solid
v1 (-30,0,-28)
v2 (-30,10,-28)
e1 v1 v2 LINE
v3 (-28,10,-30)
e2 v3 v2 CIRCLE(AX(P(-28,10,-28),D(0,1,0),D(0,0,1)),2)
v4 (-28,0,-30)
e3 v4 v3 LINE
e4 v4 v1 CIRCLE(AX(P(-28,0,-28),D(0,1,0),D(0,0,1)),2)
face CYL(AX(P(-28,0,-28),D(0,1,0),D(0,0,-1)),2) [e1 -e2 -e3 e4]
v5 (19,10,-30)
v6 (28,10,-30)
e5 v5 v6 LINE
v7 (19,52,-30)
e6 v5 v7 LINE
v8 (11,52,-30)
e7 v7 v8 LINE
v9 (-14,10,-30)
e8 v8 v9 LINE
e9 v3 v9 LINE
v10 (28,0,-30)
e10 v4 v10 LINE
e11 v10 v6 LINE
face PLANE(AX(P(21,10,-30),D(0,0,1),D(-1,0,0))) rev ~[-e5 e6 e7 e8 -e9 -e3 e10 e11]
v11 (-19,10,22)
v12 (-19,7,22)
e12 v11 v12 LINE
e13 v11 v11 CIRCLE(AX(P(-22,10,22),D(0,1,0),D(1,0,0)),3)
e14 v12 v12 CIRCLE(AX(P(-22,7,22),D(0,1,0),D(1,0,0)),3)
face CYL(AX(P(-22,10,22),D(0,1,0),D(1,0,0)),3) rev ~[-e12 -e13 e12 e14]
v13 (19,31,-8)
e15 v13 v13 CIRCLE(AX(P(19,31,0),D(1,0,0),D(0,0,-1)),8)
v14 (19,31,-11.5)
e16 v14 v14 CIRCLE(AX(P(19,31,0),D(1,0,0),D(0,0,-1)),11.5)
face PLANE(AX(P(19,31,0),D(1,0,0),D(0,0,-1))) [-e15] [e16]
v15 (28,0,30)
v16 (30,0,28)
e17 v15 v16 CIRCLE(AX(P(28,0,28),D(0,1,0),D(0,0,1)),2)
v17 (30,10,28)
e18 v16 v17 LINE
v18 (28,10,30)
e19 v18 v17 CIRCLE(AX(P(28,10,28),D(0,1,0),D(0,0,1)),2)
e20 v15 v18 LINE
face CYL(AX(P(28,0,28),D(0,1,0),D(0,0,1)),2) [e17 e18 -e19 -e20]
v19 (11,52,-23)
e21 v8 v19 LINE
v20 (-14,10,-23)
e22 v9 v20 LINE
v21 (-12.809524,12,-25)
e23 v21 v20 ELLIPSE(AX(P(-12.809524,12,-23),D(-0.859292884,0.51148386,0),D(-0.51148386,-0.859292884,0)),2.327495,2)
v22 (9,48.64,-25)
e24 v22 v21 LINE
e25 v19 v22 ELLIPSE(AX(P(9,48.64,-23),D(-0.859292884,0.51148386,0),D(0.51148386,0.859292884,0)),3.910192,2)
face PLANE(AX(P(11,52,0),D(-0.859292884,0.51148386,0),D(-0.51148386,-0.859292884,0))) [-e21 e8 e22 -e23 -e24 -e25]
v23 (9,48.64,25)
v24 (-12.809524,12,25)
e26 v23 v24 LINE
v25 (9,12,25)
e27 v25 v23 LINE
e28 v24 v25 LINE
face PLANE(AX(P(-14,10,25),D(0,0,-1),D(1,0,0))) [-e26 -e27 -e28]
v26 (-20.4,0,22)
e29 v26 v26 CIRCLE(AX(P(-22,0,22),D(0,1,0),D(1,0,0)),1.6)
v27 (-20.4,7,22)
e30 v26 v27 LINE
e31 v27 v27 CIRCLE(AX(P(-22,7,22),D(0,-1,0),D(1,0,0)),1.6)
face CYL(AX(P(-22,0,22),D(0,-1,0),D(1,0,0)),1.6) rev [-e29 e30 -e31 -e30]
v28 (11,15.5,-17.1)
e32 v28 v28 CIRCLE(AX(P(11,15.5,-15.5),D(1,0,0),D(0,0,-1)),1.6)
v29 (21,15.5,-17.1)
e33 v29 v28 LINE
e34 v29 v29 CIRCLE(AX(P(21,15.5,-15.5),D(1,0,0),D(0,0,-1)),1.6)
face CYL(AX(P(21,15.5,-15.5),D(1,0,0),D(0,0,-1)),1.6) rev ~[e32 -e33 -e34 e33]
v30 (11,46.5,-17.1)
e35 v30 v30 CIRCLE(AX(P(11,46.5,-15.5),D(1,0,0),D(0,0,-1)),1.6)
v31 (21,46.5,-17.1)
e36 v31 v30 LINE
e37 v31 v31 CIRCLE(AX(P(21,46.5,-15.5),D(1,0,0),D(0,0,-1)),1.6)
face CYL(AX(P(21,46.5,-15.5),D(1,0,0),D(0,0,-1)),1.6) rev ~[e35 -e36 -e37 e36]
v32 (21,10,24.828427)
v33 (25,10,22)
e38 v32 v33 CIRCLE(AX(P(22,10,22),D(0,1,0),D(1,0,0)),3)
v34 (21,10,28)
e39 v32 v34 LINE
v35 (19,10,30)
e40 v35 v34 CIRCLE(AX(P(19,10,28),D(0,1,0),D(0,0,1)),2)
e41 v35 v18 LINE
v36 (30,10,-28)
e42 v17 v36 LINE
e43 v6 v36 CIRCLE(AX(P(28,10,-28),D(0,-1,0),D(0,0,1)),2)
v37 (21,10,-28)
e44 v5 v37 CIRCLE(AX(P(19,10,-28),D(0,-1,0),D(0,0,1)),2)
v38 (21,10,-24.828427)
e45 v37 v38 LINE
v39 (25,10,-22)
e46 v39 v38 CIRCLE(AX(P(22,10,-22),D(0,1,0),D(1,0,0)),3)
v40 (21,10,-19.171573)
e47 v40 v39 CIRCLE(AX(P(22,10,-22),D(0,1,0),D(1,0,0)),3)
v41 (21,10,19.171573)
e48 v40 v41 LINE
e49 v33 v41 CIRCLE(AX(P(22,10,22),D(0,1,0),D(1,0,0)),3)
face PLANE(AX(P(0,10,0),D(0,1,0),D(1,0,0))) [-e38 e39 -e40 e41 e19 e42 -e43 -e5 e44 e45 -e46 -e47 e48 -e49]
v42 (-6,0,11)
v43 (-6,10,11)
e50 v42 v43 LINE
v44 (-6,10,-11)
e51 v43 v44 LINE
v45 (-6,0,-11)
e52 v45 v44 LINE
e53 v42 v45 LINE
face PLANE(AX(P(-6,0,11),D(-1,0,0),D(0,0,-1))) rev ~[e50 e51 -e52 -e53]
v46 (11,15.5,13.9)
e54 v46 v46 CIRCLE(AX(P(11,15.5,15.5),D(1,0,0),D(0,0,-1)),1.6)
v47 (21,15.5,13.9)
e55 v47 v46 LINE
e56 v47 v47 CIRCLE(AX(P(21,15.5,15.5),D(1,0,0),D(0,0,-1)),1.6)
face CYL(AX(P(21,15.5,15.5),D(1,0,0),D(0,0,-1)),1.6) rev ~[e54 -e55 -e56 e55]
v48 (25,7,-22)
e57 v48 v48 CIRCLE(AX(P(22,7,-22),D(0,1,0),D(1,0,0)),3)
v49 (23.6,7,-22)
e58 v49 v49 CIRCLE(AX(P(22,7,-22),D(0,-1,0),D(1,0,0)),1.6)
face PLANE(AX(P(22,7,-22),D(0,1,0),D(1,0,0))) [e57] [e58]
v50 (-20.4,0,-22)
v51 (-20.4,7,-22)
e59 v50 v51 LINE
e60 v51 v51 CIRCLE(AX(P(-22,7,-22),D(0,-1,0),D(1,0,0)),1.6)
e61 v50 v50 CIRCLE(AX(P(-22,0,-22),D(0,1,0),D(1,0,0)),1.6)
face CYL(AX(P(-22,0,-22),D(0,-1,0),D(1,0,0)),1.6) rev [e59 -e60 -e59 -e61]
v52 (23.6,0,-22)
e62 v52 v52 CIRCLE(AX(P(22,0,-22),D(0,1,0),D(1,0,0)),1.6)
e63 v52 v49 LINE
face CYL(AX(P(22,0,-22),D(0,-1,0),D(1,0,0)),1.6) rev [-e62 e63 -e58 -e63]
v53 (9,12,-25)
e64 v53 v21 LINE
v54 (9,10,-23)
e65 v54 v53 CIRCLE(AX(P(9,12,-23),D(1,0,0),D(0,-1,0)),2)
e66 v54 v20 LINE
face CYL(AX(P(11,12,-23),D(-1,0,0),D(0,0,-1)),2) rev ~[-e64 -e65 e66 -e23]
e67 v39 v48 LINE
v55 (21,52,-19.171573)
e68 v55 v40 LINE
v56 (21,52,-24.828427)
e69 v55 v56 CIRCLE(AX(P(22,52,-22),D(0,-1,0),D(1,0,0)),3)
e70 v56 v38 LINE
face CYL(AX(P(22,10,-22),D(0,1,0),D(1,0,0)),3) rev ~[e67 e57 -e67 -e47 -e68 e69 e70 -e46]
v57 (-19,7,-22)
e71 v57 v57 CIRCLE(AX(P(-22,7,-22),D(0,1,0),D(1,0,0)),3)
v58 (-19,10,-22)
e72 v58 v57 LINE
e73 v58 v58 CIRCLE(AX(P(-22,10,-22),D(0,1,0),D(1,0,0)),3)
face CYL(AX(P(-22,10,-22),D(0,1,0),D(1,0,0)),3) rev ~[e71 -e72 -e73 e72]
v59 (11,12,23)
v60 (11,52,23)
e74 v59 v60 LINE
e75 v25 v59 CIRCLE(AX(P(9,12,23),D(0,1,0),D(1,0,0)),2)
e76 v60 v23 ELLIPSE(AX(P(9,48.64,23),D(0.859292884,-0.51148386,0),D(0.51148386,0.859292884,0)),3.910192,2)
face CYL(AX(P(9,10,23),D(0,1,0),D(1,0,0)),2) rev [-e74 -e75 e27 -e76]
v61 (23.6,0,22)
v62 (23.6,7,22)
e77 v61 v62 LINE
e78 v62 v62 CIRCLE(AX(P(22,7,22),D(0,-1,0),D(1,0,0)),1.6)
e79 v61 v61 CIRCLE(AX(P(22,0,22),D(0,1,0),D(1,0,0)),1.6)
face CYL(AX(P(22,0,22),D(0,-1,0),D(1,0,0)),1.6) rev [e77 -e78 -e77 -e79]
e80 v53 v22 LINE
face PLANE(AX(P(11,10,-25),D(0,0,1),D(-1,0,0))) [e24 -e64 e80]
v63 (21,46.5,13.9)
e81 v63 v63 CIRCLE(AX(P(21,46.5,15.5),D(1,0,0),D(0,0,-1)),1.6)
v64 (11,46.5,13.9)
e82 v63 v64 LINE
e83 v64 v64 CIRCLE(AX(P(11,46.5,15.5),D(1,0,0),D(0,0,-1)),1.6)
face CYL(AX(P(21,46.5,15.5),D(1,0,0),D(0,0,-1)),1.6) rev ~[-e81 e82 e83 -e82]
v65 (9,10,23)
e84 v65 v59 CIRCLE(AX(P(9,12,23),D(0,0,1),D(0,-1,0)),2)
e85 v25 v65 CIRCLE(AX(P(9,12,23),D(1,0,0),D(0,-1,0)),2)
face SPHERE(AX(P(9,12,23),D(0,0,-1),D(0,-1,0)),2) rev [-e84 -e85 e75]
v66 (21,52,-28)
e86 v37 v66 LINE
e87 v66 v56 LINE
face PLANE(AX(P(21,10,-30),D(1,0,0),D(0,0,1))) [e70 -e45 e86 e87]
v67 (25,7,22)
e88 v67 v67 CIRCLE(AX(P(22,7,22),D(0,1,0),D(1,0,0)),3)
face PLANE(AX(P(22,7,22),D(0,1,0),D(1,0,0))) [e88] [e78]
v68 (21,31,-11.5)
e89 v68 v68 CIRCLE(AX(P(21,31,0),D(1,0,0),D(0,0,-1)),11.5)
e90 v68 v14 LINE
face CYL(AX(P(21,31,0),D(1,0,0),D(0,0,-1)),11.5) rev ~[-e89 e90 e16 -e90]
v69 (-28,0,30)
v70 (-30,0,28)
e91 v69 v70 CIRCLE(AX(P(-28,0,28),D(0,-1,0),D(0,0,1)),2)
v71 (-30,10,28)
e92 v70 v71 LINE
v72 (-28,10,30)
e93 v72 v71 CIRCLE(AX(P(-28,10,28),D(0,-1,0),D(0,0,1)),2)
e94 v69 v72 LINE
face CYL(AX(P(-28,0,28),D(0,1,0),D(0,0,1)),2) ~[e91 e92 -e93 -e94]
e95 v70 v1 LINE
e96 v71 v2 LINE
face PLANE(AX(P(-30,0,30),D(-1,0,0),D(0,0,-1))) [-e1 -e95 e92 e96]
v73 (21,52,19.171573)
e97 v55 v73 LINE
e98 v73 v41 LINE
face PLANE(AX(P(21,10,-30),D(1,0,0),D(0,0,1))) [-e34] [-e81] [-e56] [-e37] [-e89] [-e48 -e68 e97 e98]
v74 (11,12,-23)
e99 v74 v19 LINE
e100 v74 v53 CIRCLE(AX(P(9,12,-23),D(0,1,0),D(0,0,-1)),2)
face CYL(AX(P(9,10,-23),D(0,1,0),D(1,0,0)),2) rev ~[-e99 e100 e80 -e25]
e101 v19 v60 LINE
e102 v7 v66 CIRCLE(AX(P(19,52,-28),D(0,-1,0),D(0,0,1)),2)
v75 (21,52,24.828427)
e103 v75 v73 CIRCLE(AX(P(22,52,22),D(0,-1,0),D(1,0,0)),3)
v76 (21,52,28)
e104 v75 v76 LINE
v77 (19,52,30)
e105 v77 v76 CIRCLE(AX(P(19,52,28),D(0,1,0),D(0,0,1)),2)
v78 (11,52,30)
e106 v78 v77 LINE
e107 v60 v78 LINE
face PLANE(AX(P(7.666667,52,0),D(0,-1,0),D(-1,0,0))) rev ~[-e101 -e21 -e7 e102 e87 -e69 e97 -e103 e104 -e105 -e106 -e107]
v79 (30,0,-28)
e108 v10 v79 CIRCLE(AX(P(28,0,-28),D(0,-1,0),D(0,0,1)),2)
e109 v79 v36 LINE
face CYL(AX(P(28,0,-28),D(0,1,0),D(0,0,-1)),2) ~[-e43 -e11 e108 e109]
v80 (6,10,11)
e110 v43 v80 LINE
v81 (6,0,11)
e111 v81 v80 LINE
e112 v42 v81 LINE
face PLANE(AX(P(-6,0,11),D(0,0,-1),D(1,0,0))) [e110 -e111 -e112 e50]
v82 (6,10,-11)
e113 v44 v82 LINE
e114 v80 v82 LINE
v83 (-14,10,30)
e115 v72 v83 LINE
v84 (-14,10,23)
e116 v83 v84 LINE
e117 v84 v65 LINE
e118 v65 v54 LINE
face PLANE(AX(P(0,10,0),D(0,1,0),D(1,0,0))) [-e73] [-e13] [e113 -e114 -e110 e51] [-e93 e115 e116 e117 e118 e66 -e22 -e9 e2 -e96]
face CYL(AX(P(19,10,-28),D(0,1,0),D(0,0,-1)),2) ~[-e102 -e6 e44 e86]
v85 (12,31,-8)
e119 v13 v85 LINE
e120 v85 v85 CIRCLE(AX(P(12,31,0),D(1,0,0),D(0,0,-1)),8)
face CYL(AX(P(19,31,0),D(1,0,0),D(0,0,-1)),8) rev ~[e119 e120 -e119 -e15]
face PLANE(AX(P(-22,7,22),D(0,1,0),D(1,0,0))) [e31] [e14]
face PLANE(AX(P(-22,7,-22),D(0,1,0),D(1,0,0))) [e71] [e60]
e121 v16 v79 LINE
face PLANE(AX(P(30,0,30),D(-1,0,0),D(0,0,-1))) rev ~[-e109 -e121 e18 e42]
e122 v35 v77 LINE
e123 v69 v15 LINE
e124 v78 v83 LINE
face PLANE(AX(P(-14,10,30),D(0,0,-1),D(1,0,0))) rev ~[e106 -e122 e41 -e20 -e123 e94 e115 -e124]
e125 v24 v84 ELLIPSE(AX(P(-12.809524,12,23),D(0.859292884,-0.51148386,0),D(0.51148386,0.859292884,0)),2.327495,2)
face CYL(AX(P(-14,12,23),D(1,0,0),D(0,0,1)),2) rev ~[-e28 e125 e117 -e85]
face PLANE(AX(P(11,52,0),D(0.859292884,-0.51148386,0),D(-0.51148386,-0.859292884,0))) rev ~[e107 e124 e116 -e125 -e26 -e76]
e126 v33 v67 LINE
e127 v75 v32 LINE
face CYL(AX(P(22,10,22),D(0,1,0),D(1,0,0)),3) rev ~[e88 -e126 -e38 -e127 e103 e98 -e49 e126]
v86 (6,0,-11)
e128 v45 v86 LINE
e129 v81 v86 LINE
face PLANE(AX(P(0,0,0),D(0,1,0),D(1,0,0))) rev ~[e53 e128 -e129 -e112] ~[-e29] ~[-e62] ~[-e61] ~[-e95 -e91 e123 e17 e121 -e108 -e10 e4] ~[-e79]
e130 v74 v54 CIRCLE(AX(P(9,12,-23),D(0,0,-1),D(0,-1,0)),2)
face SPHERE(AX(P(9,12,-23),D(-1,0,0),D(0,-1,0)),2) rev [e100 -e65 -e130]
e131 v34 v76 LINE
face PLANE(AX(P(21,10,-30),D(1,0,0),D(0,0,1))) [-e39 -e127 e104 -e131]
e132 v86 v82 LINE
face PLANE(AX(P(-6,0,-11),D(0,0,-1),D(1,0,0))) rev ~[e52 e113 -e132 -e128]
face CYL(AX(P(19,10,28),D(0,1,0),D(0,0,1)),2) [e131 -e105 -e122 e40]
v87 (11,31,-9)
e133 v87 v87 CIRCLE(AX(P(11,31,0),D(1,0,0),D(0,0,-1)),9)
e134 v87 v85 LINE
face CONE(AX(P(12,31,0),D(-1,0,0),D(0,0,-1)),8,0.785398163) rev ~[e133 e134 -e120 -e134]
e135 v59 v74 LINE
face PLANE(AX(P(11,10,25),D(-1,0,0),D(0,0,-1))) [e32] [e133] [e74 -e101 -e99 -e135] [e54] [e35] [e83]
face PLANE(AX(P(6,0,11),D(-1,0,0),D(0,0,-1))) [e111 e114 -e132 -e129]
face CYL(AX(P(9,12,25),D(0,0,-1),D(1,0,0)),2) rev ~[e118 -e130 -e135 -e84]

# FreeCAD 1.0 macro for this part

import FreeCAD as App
import Part
import Sketcher


def edges_at(feature, points):
    """Names of the edges that pass closest to the given points."""
    edges = feature.Shape.Edges
    near = lambda p: min(range(len(edges)), key=lambda i: edges[i].distToShape(Part.Vertex(*p))[0])
    return sorted({f"Edge{near(p) + 1}" for p in points})

doc = App.newDocument("Part")
body = doc.addObject("PartDesign::Body", "Body")

# Sketch on XZ plane
sketch1 = body.newObject("Sketcher::SketchObject", "Sketch")
sketch1.AttachmentSupport = (doc.getObject("XZ_Plane"), [""])
sketch1.MapMode = "FlatFace"
sketch1.addGeometry([
    Part.LineSegment(App.Vector(-30, -30, 0), App.Vector(-30, 30, 0)),  # 0
    Part.LineSegment(App.Vector(-30, 30, 0), App.Vector(30, 30, 0)),  # 1
    Part.LineSegment(App.Vector(30, 30, 0), App.Vector(30, -30, 0)),  # 2
    Part.LineSegment(App.Vector(30, -30, 0), App.Vector(-30, -30, 0)),  # 3
    Part.Circle(App.Vector(-22, 22, 0), App.Vector(0, 0, 1), 1.6),  # 4
    Part.Circle(App.Vector(22, 22, 0), App.Vector(0, 0, 1), 1.6),  # 5
    Part.Circle(App.Vector(-22, -22, 0), App.Vector(0, 0, 1), 1.6),  # 6
    Part.LineSegment(App.Vector(6, 11, 0), App.Vector(-6, 11, 0)),  # 7
    Part.LineSegment(App.Vector(-6, 11, 0), App.Vector(-6, -11, 0)),  # 8
    Part.LineSegment(App.Vector(-6, -11, 0), App.Vector(6, -11, 0)),  # 9
    Part.LineSegment(App.Vector(6, -11, 0), App.Vector(6, 11, 0)),  # 10
    Part.Circle(App.Vector(22, -22, 0), App.Vector(0, 0, 1), 1.6),  # 11
], False)
sketch1.addConstraint([
    Sketcher.Constraint("Coincident", 0, 2, 1, 1),
    Sketcher.Constraint("Coincident", 1, 2, 2, 1),
    Sketcher.Constraint("Coincident", 2, 2, 3, 1),
    Sketcher.Constraint("Coincident", 3, 2, 0, 1),
    Sketcher.Constraint("Coincident", 7, 2, 8, 1),
    Sketcher.Constraint("Coincident", 8, 2, 9, 1),
    Sketcher.Constraint("Coincident", 9, 2, 10, 1),
    Sketcher.Constraint("Coincident", 10, 2, 7, 1),
    Sketcher.Constraint("Vertical", 0),
    Sketcher.Constraint("Horizontal", 1),
    Sketcher.Constraint("Vertical", 2),
    Sketcher.Constraint("Horizontal", 3),
    Sketcher.Constraint("Horizontal", 7),
    Sketcher.Constraint("Vertical", 8),
    Sketcher.Constraint("Horizontal", 9),
    Sketcher.Constraint("Vertical", 10),
    Sketcher.Constraint("Equal", 4, 5),
    Sketcher.Constraint("Equal", 5, 6),
    Sketcher.Constraint("Equal", 6, 11),
    Sketcher.Constraint("Symmetric", 5, 3, 6, 3, -1, 1),
    Sketcher.Constraint("Symmetric", 4, 3, 11, 3, -1, 1),
    Sketcher.Constraint("Symmetric", 0, 2, 2, 2, -1, 1),
    Sketcher.Constraint("Symmetric", 7, 2, 9, 2, -1, 1),
    Sketcher.Constraint("Symmetric", 4, 3, 5, 3, -2),
    Sketcher.Constraint("Equal", 3, 0),
    Sketcher.Constraint("Diameter", 4, 3.2),
    Sketcher.Constraint("DistanceX", 1, 1, 1, 2, 60.0),
    Sketcher.Constraint("DistanceX", 7, 2, 7, 1, 12.0),
    Sketcher.Constraint("DistanceY", 8, 2, 8, 1, 22.0),
    Sketcher.Constraint("DistanceX", 4, 3, -1, 1, 22.0),
    Sketcher.Constraint("DistanceY", -1, 1, 4, 3, 22.0),
])
pad1 = body.newObject("PartDesign::Pad", "Pad")
pad1.Profile = sketch1
pad1.Length = 10
pad1.Reversed = True

# Sketch on XZ plane
sketch2 = body.newObject("Sketcher::SketchObject", "Sketch001")
sketch2.AttachmentSupport = (doc.getObject("XZ_Plane"), [""])
sketch2.MapMode = "FlatFace"
sketch2.AttachmentOffset = App.Placement(App.Vector(0, 0, -10), App.Rotation())
sketch2.addGeometry([
    Part.LineSegment(App.Vector(21, -30, 0), App.Vector(-14, -30, 0)),  # 0
    Part.LineSegment(App.Vector(-14, -30, 0), App.Vector(-14, -25, 0)),  # 1
    Part.LineSegment(App.Vector(-14, -25, 0), App.Vector(11, -25, 0)),  # 2
    Part.LineSegment(App.Vector(11, -25, 0), App.Vector(11, 25, 0)),  # 3
    Part.LineSegment(App.Vector(11, 25, 0), App.Vector(-14, 25, 0)),  # 4
    Part.LineSegment(App.Vector(-14, 25, 0), App.Vector(-14, 30, 0)),  # 5
    Part.LineSegment(App.Vector(-14, 30, 0), App.Vector(21, 30, 0)),  # 6
    Part.LineSegment(App.Vector(21, 30, 0), App.Vector(21, -30, 0)),  # 7
], False)
sketch2.addConstraint([
    Sketcher.Constraint("Coincident", 0, 2, 1, 1),
    Sketcher.Constraint("Coincident", 1, 2, 2, 1),
    Sketcher.Constraint("Coincident", 2, 2, 3, 1),
    Sketcher.Constraint("Coincident", 3, 2, 4, 1),
    Sketcher.Constraint("Coincident", 4, 2, 5, 1),
    Sketcher.Constraint("Coincident", 5, 2, 6, 1),
    Sketcher.Constraint("Coincident", 6, 2, 7, 1),
    Sketcher.Constraint("Coincident", 7, 2, 0, 1),
    Sketcher.Constraint("Horizontal", 0),
    Sketcher.Constraint("Vertical", 1),
    Sketcher.Constraint("Horizontal", 2),
    Sketcher.Constraint("Vertical", 3),
    Sketcher.Constraint("Horizontal", 4),
    Sketcher.Constraint("Vertical", 5),
    Sketcher.Constraint("Horizontal", 6),
    Sketcher.Constraint("Vertical", 7),
    Sketcher.Constraint("Symmetric", 1, 2, 4, 2, -1),
    Sketcher.Constraint("Equal", 1, 5),
    Sketcher.Constraint("DistanceX", 0, 2, 0, 1, 35.0),
    Sketcher.Constraint("DistanceX", 2, 1, 2, 2, 25.0),
    Sketcher.Constraint("DistanceY", 1, 1, 1, 2, 5.0),
    Sketcher.Constraint("DistanceY", 3, 1, 3, 2, 50.0),
    Sketcher.Constraint("DistanceX", 0, 2, -1, 1, 14.0),
])
pad2 = body.newObject("PartDesign::Pad", "Pad001")
pad2.Profile = sketch2
pad2.Length = 42
pad2.Reversed = True

# Sketch on YZ plane
sketch3 = body.newObject("Sketcher::SketchObject", "Sketch002")
sketch3.AttachmentSupport = (doc.getObject("YZ_Plane"), [""])
sketch3.MapMode = "FlatFace"
sketch3.AttachmentOffset = App.Placement(App.Vector(0, 0, 21), App.Rotation())
sketch3.addGeometry(Part.Circle(App.Vector(31, 0, 0), App.Vector(0, 0, 1), 12), False)
sketch3.addConstraint([
    Sketcher.Constraint("PointOnObject", 0, 3, -1),
    Sketcher.Constraint("Diameter", 0, 23.0),
    Sketcher.Constraint("DistanceX", -1, 1, 0, 3, 31.0),
])
pocket1 = body.newObject("PartDesign::Pocket", "Pocket")
pocket1.Profile = sketch3
pocket1.Length = 2

# Sketch on YZ plane
sketch4 = body.newObject("Sketcher::SketchObject", "Sketch003")
sketch4.AttachmentSupport = (doc.getObject("YZ_Plane"), [""])
sketch4.MapMode = "FlatFace"
sketch4.AttachmentOffset = App.Placement(App.Vector(0, 0, 19), App.Rotation())
sketch4.addGeometry(Part.Circle(App.Vector(31, 0, 0), App.Vector(0, 0, 1), 8), False)
sketch4.addConstraint([
    Sketcher.Constraint("PointOnObject", 0, 3, -1),
    Sketcher.Constraint("Diameter", 0, 16.0),
    Sketcher.Constraint("DistanceX", -1, 1, 0, 3, 31.0),
])
pocket2 = body.newObject("PartDesign::Pocket", "Pocket001")
pocket2.Profile = sketch4
pocket2.Length = 8

# Sketch on YZ plane
sketch5 = body.newObject("Sketcher::SketchObject", "Sketch004")
sketch5.AttachmentSupport = (doc.getObject("YZ_Plane"), [""])
sketch5.MapMode = "FlatFace"
sketch5.AttachmentOffset = App.Placement(App.Vector(0, 0, 21), App.Rotation())
sketch5.addGeometry([
    Part.Circle(App.Vector(46.5, 15.5, 0), App.Vector(0, 0, 1), 1.6),
    Part.Circle(App.Vector(46.5, -15.5, 0), App.Vector(0, 0, 1), 1.6),
    Part.Circle(App.Vector(15.5, -15.5, 0), App.Vector(0, 0, 1), 1.6),
    Part.Circle(App.Vector(15.5, 15.5, 0), App.Vector(0, 0, 1), 1.6),
], False)
sketch5.addConstraint([
    Sketcher.Constraint("Equal", 0, 1),
    Sketcher.Constraint("Equal", 1, 2),
    Sketcher.Constraint("Equal", 2, 3),
    Sketcher.Constraint("Symmetric", 0, 3, 1, 3, -1),
    Sketcher.Constraint("Symmetric", 2, 3, 3, 3, -1),
    Sketcher.Constraint("Horizontal", 1, 3, 2, 3),
    Sketcher.Constraint("Diameter", 0, 3.2),
    Sketcher.Constraint("DistanceY", 1, 3, 0, 3, 31.0),
    Sketcher.Constraint("DistanceX", 2, 3, 1, 3, 31.0),
    Sketcher.Constraint("DistanceX", -1, 1, 0, 3, 46.5),
])
pocket3 = body.newObject("PartDesign::Pocket", "Pocket002")
pocket3.Profile = sketch5
pocket3.Length = 10

# Sketch on XZ plane
sketch6 = body.newObject("Sketcher::SketchObject", "Sketch005")
sketch6.AttachmentSupport = (doc.getObject("XZ_Plane"), [""])
sketch6.MapMode = "FlatFace"
sketch6.AttachmentOffset = App.Placement(App.Vector(0, 0, -10), App.Rotation())
sketch6.addGeometry([
    Part.Circle(App.Vector(-22, -22, 0), App.Vector(0, 0, 1), 3),
    Part.Circle(App.Vector(22, -22, 0), App.Vector(0, 0, 1), 3),
    Part.Circle(App.Vector(22, 22, 0), App.Vector(0, 0, 1), 3),
    Part.Circle(App.Vector(-22, 22, 0), App.Vector(0, 0, 1), 3),
], False)
sketch6.addConstraint([
    Sketcher.Constraint("Equal", 0, 1),
    Sketcher.Constraint("Equal", 1, 2),
    Sketcher.Constraint("Equal", 2, 3),
    Sketcher.Constraint("Symmetric", 0, 3, 2, 3, -1, 1),
    Sketcher.Constraint("Symmetric", 1, 3, 3, 3, -1, 1),
    Sketcher.Constraint("Symmetric", 0, 3, 1, 3, -2),
    Sketcher.Constraint("Diameter", 0, 6.0),
    Sketcher.Constraint("DistanceX", 0, 3, -1, 1, 22.0),
    Sketcher.Constraint("DistanceY", 0, 3, -1, 1, 22.0),
])
pocket4 = body.newObject("PartDesign::Pocket", "Pocket003")
pocket4.Profile = sketch6
pocket4.Length = 3
pocket4.Reversed = True

# Sketch on XZ plane
sketch7 = body.newObject("Sketcher::SketchObject", "Sketch006")
sketch7.AttachmentSupport = (doc.getObject("XZ_Plane"), [""])
sketch7.MapMode = "FlatFace"
sketch7.AttachmentOffset = App.Placement(App.Vector(0, 0, -10), App.Rotation())
sketch7.addGeometry([
    Part.Circle(App.Vector(22, -22, 0), App.Vector(0, 0, 1), 3),
    Part.Circle(App.Vector(22, 22, 0), App.Vector(0, 0, 1), 3),
], False)
sketch7.addConstraint([
    Sketcher.Constraint("Equal", 0, 1),
    Sketcher.Constraint("Symmetric", 0, 3, 1, 3, -1),
    Sketcher.Constraint("Diameter", 0, 6.0),
    Sketcher.Constraint("DistanceX", -1, 1, 0, 3, 22.0),
    Sketcher.Constraint("DistanceY", 0, 3, -1, 1, 22.0),
])
pocket5 = body.newObject("PartDesign::Pocket", "Pocket004")
pocket5.Profile = sketch7
pocket5.Type = "ThroughAll"

# Sketch on XY plane
sketch8 = body.newObject("Sketcher::SketchObject", "Sketch007")
sketch8.AttachmentSupport = (doc.getObject("XY_Plane"), [""])
sketch8.MapMode = "FlatFace"
sketch8.addGeometry([
    Part.LineSegment(App.Vector(-14, 10, 0), App.Vector(11, 52, 0)),  # 0
    Part.LineSegment(App.Vector(11, 52, 0), App.Vector(11, 54.6, 0)),  # 1
    Part.LineSegment(App.Vector(11, 54.6, 0), App.Vector(-19.7, 54.6, 0)),  # 2
    Part.LineSegment(App.Vector(-19.7, 54.6, 0), App.Vector(-19.7, 22.4, 0)),  # 3
    Part.LineSegment(App.Vector(-19.7, 22.4, 0), App.Vector(-14, 10, 0)),  # 4
], False)
sketch8.addConstraint([
    Sketcher.Constraint("Coincident", 0, 2, 1, 1),
    Sketcher.Constraint("Coincident", 1, 2, 2, 1),
    Sketcher.Constraint("Coincident", 2, 2, 3, 1),
    Sketcher.Constraint("Coincident", 3, 2, 4, 1),
    Sketcher.Constraint("Coincident", 4, 2, 0, 1),
    Sketcher.Constraint("Vertical", 1),
    Sketcher.Constraint("Horizontal", 2),
    Sketcher.Constraint("Vertical", 3),
    Sketcher.Constraint("DistanceX", -1, 1, 0, 2, 11.0),
    Sketcher.Constraint("DistanceY", -1, 1, 0, 2, 52.0),
    Sketcher.Constraint("DistanceX", 4, 2, -1, 1, 14.0),
    Sketcher.Constraint("DistanceY", -1, 1, 4, 2, 10.0),
    Sketcher.Constraint("DistanceX", 2, 2, 2, 1, 30.679989),
    Sketcher.Constraint("DistanceY", 1, 1, 1, 2, 2.58449),
    Sketcher.Constraint("DistanceY", 3, 2, 3, 1, 32.222516),
])
pocket6 = body.newObject("PartDesign::Pocket", "Pocket005")
pocket6.Profile = sketch8
pocket6.Type = "ThroughAll"
pocket6.Midplane = True
doc.recompute()

fillet = body.newObject("PartDesign::Fillet", "Fillet")
fillet.Base = (pocket6, edges_at(pocket6, [
    (21, 31, 30),
    (21, 31, -30),
    (-1.5, 10, -25),
    (11, 10, 0),
    (11, 31, -25),
    (-1.5, 10, 25),
    (11, 31, 25),
]))
fillet.Radius = 2
doc.recompute()

fillet2 = body.newObject("PartDesign::Fillet", "Fillet001")
fillet2.Base = (fillet, edges_at(fillet, [
    (30, 5, 30),
    (-30, 5, 30),
    (-30, 5, -30),
    (30, 5, -30),
]))
fillet2.Radius = 2
doc.recompute()

chamfer = body.newObject("PartDesign::Chamfer", "Chamfer")
chamfer.Base = (fillet2, edges_at(fillet2, [(11, 31, 8)]))
chamfer.Size = 1

doc.recompute()
